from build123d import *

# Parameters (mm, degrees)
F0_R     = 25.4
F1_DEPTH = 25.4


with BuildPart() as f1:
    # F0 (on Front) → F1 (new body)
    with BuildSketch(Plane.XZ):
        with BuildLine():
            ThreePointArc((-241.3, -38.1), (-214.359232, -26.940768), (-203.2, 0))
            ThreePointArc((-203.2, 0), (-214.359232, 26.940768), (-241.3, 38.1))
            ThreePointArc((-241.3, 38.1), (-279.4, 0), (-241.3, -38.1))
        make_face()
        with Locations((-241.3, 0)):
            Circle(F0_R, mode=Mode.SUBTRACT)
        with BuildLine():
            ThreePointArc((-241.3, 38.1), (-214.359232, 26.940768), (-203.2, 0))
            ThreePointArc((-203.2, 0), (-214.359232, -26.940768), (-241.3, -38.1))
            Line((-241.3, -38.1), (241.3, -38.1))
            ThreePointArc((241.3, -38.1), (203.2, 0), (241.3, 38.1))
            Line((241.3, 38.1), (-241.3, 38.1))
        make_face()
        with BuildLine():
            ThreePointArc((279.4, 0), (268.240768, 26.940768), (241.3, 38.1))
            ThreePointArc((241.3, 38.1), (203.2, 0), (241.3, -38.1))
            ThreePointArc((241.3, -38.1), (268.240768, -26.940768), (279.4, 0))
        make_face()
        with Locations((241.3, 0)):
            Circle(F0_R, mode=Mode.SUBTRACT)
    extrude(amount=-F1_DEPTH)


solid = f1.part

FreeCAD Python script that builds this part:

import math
import FreeCAD as App
import Part
import Sketcher
from FreeCAD import Vector
Q = App.Units.Quantity

doc = App.newDocument("Part")
body = doc.addObject("PartDesign::Body", "Body")

sketch1 = body.newObject("Sketcher::SketchObject", "Sketch")
sketch1.AttachmentSupport = (doc.getObject("XZ_Plane"), [""])
sketch1.MapMode = "FlatFace"
sketch1.addGeometry(Part.ArcOfCircle(Part.Circle(Vector(-241.3, 0, 0), Vector(0, 0, 1), 38.1), math.radians(90), math.radians(270)), False)
sketch1.addGeometry(Part.LineSegment(Vector(-241.3, -38.1, 0), Vector(241.3, -38.1, 0)), False)
sketch1.addGeometry(Part.ArcOfCircle(Part.Circle(Vector(241.299999, 0.000001, 0), Vector(0, 0, 1), 38.100001), math.radians(-89.999998), math.radians(-0.000002)), False)
sketch1.addGeometry(Part.ArcOfCircle(Part.Circle(Vector(241.299999, -0.000001, 0), Vector(0, 0, 1), 38.100001), math.radians(0.000002), math.radians(89.999998)), False)
sketch1.addGeometry(Part.LineSegment(Vector(241.3, 38.1, 0), Vector(-241.3, 38.1, 0)), False)
sketch1.addGeometry(Part.Circle(Vector(-241.3, 0, 0), Vector(0, 0, 1), 25.4), False)
sketch1.addGeometry(Part.Circle(Vector(241.3, 0, 0), Vector(0, 0, 1), 25.4), False)
sketch1.addConstraint(Sketcher.Constraint("Tangent", 0, 2, 1, 1))
sketch1.addConstraint(Sketcher.Constraint("Tangent", 1, 2, 2, 1))
sketch1.addConstraint(Sketcher.Constraint("Tangent", 2, 2, 3, 1))
sketch1.addConstraint(Sketcher.Constraint("Tangent", 3, 2, 4, 1))
sketch1.addConstraint(Sketcher.Constraint("Tangent", 4, 2, 0, 1))
sketch1.addConstraint(Sketcher.Constraint("Horizontal", 1))
sketch1.addConstraint(Sketcher.Constraint("Horizontal", 4))
sketch1.addConstraint(Sketcher.Constraint("Coincident", 5, 3, 0, 3))
sketch1.addConstraint(Sketcher.Constraint("Coincident", 6, 3, 2, 3))
sketch1.addConstraint(Sketcher.Constraint("Equal", 0, 2))
sketch1.addConstraint(Sketcher.Constraint("Equal", 5, 6))
sketch1.addConstraint(Sketcher.Constraint("Symmetric", 0, 3, 2, 3, -1, 1))
sketch1.addConstraint(Sketcher.Constraint("PointOnObject", 2, 2, -1))
sketch1.addConstraint(Sketcher.Constraint("Diameter", 5, Q("2 in")))
sketch1.addConstraint(Sketcher.Constraint("Radius", 0, Q("1.5 in")))
sketch1.addConstraint(Sketcher.Constraint("DistanceX", 1, 1, 1, 2, Q("19 in")))
pad1 = body.newObject("PartDesign::Pad", "Pad")
pad1.Profile = sketch1
pad1.Length = Q("1 in")
pad1.Reversed = True

doc.recompute()
